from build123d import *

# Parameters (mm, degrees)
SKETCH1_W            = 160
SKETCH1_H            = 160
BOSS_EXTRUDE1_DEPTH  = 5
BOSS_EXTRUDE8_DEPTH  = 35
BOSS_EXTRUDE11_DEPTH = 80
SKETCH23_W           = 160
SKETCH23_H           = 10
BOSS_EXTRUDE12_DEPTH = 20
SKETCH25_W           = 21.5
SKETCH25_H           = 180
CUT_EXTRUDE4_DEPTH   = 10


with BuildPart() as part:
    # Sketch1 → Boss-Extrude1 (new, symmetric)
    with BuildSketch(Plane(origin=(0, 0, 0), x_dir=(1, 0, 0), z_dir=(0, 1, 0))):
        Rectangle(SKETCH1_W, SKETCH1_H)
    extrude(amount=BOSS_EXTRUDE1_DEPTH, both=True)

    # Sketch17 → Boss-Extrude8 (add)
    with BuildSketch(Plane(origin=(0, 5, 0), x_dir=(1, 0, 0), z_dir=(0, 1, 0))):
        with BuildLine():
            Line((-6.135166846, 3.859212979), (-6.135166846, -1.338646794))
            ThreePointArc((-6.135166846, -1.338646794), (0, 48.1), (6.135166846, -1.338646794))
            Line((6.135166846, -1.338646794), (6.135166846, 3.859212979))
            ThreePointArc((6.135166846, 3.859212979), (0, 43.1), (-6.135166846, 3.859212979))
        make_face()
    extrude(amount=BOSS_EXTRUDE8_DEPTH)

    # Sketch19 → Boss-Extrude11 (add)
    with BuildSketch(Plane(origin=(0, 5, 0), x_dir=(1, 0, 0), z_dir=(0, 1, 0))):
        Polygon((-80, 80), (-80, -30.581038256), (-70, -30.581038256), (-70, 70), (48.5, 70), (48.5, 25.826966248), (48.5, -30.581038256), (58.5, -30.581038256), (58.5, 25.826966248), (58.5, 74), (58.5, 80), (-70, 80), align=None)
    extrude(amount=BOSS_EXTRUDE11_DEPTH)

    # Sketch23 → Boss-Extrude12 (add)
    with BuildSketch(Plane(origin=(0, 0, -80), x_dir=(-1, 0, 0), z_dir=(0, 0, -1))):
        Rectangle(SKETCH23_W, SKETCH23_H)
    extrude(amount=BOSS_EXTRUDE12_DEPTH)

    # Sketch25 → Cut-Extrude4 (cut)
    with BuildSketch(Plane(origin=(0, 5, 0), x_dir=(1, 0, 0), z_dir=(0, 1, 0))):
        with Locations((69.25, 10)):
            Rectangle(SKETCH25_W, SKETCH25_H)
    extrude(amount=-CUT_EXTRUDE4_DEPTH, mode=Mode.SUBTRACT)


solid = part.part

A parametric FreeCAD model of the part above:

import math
import FreeCAD as App
import Part
import Sketcher
from FreeCAD import Vector
Q = App.Units.Quantity

doc = App.newDocument("Part")
body = doc.addObject("PartDesign::Body", "Body")

# Sketch on XZ plane
sketch1 = body.newObject("Sketcher::SketchObject", "Sketch")
sketch1.AttachmentSupport = (doc.getObject("XZ_Plane"), [""])
sketch1.MapMode = "FlatFace"
sketch1.addGeometry(Part.LineSegment(Vector(-80, -80, 0), Vector(-80, 80, 0)), False)
sketch1.addGeometry(Part.LineSegment(Vector(-80, 80, 0), Vector(80, 80, 0)), False)
sketch1.addGeometry(Part.LineSegment(Vector(80, 80, 0), Vector(80, -80, 0)), False)
sketch1.addGeometry(Part.LineSegment(Vector(80, -80, 0), Vector(-80, -80, 0)), False)
sketch1.addConstraint(Sketcher.Constraint("Coincident", 0, 2, 1, 1))
sketch1.addConstraint(Sketcher.Constraint("Coincident", 1, 2, 2, 1))
sketch1.addConstraint(Sketcher.Constraint("Coincident", 2, 2, 3, 1))
sketch1.addConstraint(Sketcher.Constraint("Coincident", 3, 2, 0, 1))
sketch1.addConstraint(Sketcher.Constraint("Vertical", 0))
sketch1.addConstraint(Sketcher.Constraint("Horizontal", 1))
sketch1.addConstraint(Sketcher.Constraint("Vertical", 2))
sketch1.addConstraint(Sketcher.Constraint("Horizontal", 3))
sketch1.addConstraint(Sketcher.Constraint("Symmetric", 0, 2, 2, 2, -1, 1))
sketch1.addConstraint(Sketcher.Constraint("Equal", 3, 0))
sketch1.addConstraint(Sketcher.Constraint("DistanceX", 1, 1, 1, 2, Q("160 mm")))
pad1 = body.newObject("PartDesign::Pad", "Pad")
pad1.Profile = sketch1
pad1.Length = 10
pad1.Midplane = True

# Sketch on XZ plane
sketch2 = body.newObject("Sketcher::SketchObject", "Sketch001")
sketch2.AttachmentSupport = (doc.getObject("XZ_Plane"), [""])
sketch2.MapMode = "FlatFace"
sketch2.AttachmentOffset = App.Placement(Vector(0, 0, -5), App.Rotation())
sketch2.addGeometry(Part.LineSegment(Vector(-6, 1, 0), Vector(-6, -4, 0)), False)
sketch2.addGeometry(Part.ArcOfCircle(Part.Circle(Vector(0, -23, 0), Vector(0, 0, 1), 20), math.radians(108), math.radians(432)), False)
sketch2.addGeometry(Part.LineSegment(Vector(6, -4, 0), Vector(6, 1, 0)), False)
sketch2.addGeometry(Part.ArcOfCircle(Part.Circle(Vector(0, -23, 0), Vector(0, 0, 1), 25), math.radians(104), math.radians(436)), False)
sketch2.addConstraint(Sketcher.Constraint("Coincident", 0, 2, 1, 1))
sketch2.addConstraint(Sketcher.Constraint("Coincident", 1, 2, 2, 1))
sketch2.addConstraint(Sketcher.Constraint("Coincident", 2, 2, 3, 2))
sketch2.addConstraint(Sketcher.Constraint("Coincident", 3, 1, 0, 1))
sketch2.addConstraint(Sketcher.Constraint("Vertical", 0))
sketch2.addConstraint(Sketcher.Constraint("Vertical", 2))
sketch2.addConstraint(Sketcher.Constraint("Coincident", 3, 3, 1, 3))
sketch2.addConstraint(Sketcher.Constraint("Symmetric", 0, 2, 1, 2, -2))
sketch2.addConstraint(Sketcher.Constraint("Radius", 1, Q("20.1 mm")))
sketch2.addConstraint(Sketcher.Constraint("Radius", 3, Q("25.1 mm")))
sketch2.addConstraint(Sketcher.Constraint("DistanceY", 1, 3, -1, 1, Q("23 mm")))
sketch2.addConstraint(Sketcher.Constraint("DistanceY", 0, 2, 0, 1, Q("5.19786 mm")))
pad2 = body.newObject("PartDesign::Pad", "Pad001")
pad2.Profile = sketch2
pad2.Length = 35
pad2.Reversed = True

# Sketch on XZ plane
sketch3 = body.newObject("Sketcher::SketchObject", "Sketch002")
sketch3.AttachmentSupport = (doc.getObject("XZ_Plane"), [""])
sketch3.MapMode = "FlatFace"
sketch3.AttachmentOffset = App.Placement(Vector(0, 0, -5), App.Rotation())
sketch3.addGeometry(Part.LineSegment(Vector(-80, -80, 0), Vector(-80, 31, 0)), False)
sketch3.addGeometry(Part.LineSegment(Vector(-80, 31, 0), Vector(-70, 31, 0)), False)
sketch3.addGeometry(Part.LineSegment(Vector(-70, 31, 0), Vector(-70, -70, 0)), False)
sketch3.addGeometry(Part.LineSegment(Vector(-70, -70, 0), Vector(48, -70, 0)), False)
sketch3.addGeometry(Part.LineSegment(Vector(48, -70, 0), Vector(48, 31, 0)), False)
sketch3.addGeometry(Part.LineSegment(Vector(48, 31, 0), Vector(58, 31, 0)), False)
sketch3.addGeometry(Part.LineSegment(Vector(58, 31, 0), Vector(58, -80, 0)), False)
sketch3.addGeometry(Part.LineSegment(Vector(58, -80, 0), Vector(-80, -80, 0)), False)
sketch3.addConstraint(Sketcher.Constraint("Coincident", 0, 2, 1, 1))
sketch3.addConstraint(Sketcher.Constraint("Coincident", 1, 2, 2, 1))
sketch3.addConstraint(Sketcher.Constraint("Coincident", 2, 2, 3, 1))
sketch3.addConstraint(Sketcher.Constraint("Coincident", 3, 2, 4, 1))
sketch3.addConstraint(Sketcher.Constraint("Coincident", 4, 2, 5, 1))
sketch3.addConstraint(Sketcher.Constraint("Coincident", 5, 2, 6, 1))
sketch3.addConstraint(Sketcher.Constraint("Coincident", 6, 2, 7, 1))
sketch3.addConstraint(Sketcher.Constraint("Coincident", 7, 2, 0, 1))
sketch3.addConstraint(Sketcher.Constraint("Vertical", 0))
sketch3.addConstraint(Sketcher.Constraint("Horizontal", 1))
sketch3.addConstraint(Sketcher.Constraint("Vertical", 2))
sketch3.addConstraint(Sketcher.Constraint("Horizontal", 3))
sketch3.addConstraint(Sketcher.Constraint("Vertical", 4))
sketch3.addConstraint(Sketcher.Constraint("Horizontal", 5))
sketch3.addConstraint(Sketcher.Constraint("Vertical", 6))
sketch3.addConstraint(Sketcher.Constraint("Horizontal", 7))
sketch3.addConstraint(Sketcher.Constraint("Horizontal", 1, 2, 4, 2))
sketch3.addConstraint(Sketcher.Constraint("Equal", 1, 5))
sketch3.addConstraint(Sketcher.Constraint("DistanceX", 1, 1, 1, 2, Q("10 mm")))
sketch3.addConstraint(Sketcher.Constraint("DistanceX", 3, 1, 3, 2, Q("118.5 mm")))
sketch3.addConstraint(Sketcher.Constraint("DistanceX", 0, 2, -1, 1, Q("80 mm")))
sketch3.addConstraint(Sketcher.Constraint("DistanceY", 2, 2, -1, 1, Q("70 mm")))
sketch3.addConstraint(Sketcher.Constraint("DistanceY", 6, 2, -1, 1, Q("80 mm")))
sketch3.addConstraint(Sketcher.Constraint("DistanceY", 0, 1, 0, 2, Q("110.581038 mm")))
pad3 = body.newObject("PartDesign::Pad", "Pad002")
pad3.Profile = sketch3
pad3.Length = 80
pad3.Reversed = True

# Sketch on XY plane
sketch4 = body.newObject("Sketcher::SketchObject", "Sketch003")
sketch4.AttachmentSupport = (doc.getObject("XY_Plane"), [""])
sketch4.MapMode = "FlatFace"
sketch4.AttachmentOffset = App.Placement(Vector(0, 0, -80), App.Rotation())
sketch4.addGeometry(Part.LineSegment(Vector(80, 5, 0), Vector(80, -5, 0)), False)
sketch4.addGeometry(Part.LineSegment(Vector(80, -5, 0), Vector(-80, -5, 0)), False)
sketch4.addGeometry(Part.LineSegment(Vector(-80, -5, 0), Vector(-80, 5, 0)), False)
sketch4.addGeometry(Part.LineSegment(Vector(-80, 5, 0), Vector(80, 5, 0)), False)
sketch4.addConstraint(Sketcher.Constraint("Coincident", 0, 2, 1, 1))
sketch4.addConstraint(Sketcher.Constraint("Coincident", 1, 2, 2, 1))
sketch4.addConstraint(Sketcher.Constraint("Coincident", 2, 2, 3, 1))
sketch4.addConstraint(Sketcher.Constraint("Coincident", 3, 2, 0, 1))
sketch4.addConstraint(Sketcher.Constraint("Vertical", 0))
sketch4.addConstraint(Sketcher.Constraint("Horizontal", 1))
sketch4.addConstraint(Sketcher.Constraint("Vertical", 2))
sketch4.addConstraint(Sketcher.Constraint("Horizontal", 3))
sketch4.addConstraint(Sketcher.Constraint("Symmetric", 0, 2, 2, 2, -1, 1))
sketch4.addConstraint(Sketcher.Constraint("DistanceX", 1, 2, 1, 1, Q("160 mm")))
sketch4.addConstraint(Sketcher.Constraint("DistanceY", 0, 2, 0, 1, Q("10 mm")))
pad4 = body.newObject("PartDesign::Pad", "Pad003")
pad4.Profile = sketch4
pad4.Length = 20
pad4.Reversed = True

# Sketch on XZ plane
sketch5 = body.newObject("Sketcher::SketchObject", "Sketch004")
sketch5.AttachmentSupport = (doc.getObject("XZ_Plane"), [""])
sketch5.MapMode = "FlatFace"
sketch5.AttachmentOffset = App.Placement(Vector(0, 0, -5), App.Rotation())
sketch5.addGeometry(Part.LineSegment(Vector(58, -100, 0), Vector(58, 80, 0)), False)
sketch5.addGeometry(Part.LineSegment(Vector(58, 80, 0), Vector(80, 80, 0)), False)
sketch5.addGeometry(Part.LineSegment(Vector(80, 80, 0), Vector(80, -100, 0)), False)
sketch5.addGeometry(Part.LineSegment(Vector(80, -100, 0), Vector(58, -100, 0)), False)
sketch5.addConstraint(Sketcher.Constraint("Coincident", 0, 2, 1, 1))
sketch5.addConstraint(Sketcher.Constraint("Coincident", 1, 2, 2, 1))
sketch5.addConstraint(Sketcher.Constraint("Coincident", 2, 2, 3, 1))
sketch5.addConstraint(Sketcher.Constraint("Coincident", 3, 2, 0, 1))
sketch5.addConstraint(Sketcher.Constraint("Vertical", 0))
sketch5.addConstraint(Sketcher.Constraint("Horizontal", 1))
sketch5.addConstraint(Sketcher.Constraint("Vertical", 2))
sketch5.addConstraint(Sketcher.Constraint("Horizontal", 3))
sketch5.addConstraint(Sketcher.Constraint("DistanceY", 0, 1, 0, 2, Q("180 mm")))
sketch5.addConstraint(Sketcher.Constraint("DistanceX", 1, 1, 1, 2, Q("21.5 mm")))
sketch5.addConstraint(Sketcher.Constraint("DistanceY", -1, 1, 0, 2, Q("80 mm")))
sketch5.addConstraint(Sketcher.Constraint("DistanceX", -1, 1, 1, 2, Q("80 mm")))
pocket1 = body.newObject("PartDesign::Pocket", "Pocket")
pocket1.Profile = sketch5
pocket1.Length = 10
pocket1.Reversed = True

doc.recompute()
